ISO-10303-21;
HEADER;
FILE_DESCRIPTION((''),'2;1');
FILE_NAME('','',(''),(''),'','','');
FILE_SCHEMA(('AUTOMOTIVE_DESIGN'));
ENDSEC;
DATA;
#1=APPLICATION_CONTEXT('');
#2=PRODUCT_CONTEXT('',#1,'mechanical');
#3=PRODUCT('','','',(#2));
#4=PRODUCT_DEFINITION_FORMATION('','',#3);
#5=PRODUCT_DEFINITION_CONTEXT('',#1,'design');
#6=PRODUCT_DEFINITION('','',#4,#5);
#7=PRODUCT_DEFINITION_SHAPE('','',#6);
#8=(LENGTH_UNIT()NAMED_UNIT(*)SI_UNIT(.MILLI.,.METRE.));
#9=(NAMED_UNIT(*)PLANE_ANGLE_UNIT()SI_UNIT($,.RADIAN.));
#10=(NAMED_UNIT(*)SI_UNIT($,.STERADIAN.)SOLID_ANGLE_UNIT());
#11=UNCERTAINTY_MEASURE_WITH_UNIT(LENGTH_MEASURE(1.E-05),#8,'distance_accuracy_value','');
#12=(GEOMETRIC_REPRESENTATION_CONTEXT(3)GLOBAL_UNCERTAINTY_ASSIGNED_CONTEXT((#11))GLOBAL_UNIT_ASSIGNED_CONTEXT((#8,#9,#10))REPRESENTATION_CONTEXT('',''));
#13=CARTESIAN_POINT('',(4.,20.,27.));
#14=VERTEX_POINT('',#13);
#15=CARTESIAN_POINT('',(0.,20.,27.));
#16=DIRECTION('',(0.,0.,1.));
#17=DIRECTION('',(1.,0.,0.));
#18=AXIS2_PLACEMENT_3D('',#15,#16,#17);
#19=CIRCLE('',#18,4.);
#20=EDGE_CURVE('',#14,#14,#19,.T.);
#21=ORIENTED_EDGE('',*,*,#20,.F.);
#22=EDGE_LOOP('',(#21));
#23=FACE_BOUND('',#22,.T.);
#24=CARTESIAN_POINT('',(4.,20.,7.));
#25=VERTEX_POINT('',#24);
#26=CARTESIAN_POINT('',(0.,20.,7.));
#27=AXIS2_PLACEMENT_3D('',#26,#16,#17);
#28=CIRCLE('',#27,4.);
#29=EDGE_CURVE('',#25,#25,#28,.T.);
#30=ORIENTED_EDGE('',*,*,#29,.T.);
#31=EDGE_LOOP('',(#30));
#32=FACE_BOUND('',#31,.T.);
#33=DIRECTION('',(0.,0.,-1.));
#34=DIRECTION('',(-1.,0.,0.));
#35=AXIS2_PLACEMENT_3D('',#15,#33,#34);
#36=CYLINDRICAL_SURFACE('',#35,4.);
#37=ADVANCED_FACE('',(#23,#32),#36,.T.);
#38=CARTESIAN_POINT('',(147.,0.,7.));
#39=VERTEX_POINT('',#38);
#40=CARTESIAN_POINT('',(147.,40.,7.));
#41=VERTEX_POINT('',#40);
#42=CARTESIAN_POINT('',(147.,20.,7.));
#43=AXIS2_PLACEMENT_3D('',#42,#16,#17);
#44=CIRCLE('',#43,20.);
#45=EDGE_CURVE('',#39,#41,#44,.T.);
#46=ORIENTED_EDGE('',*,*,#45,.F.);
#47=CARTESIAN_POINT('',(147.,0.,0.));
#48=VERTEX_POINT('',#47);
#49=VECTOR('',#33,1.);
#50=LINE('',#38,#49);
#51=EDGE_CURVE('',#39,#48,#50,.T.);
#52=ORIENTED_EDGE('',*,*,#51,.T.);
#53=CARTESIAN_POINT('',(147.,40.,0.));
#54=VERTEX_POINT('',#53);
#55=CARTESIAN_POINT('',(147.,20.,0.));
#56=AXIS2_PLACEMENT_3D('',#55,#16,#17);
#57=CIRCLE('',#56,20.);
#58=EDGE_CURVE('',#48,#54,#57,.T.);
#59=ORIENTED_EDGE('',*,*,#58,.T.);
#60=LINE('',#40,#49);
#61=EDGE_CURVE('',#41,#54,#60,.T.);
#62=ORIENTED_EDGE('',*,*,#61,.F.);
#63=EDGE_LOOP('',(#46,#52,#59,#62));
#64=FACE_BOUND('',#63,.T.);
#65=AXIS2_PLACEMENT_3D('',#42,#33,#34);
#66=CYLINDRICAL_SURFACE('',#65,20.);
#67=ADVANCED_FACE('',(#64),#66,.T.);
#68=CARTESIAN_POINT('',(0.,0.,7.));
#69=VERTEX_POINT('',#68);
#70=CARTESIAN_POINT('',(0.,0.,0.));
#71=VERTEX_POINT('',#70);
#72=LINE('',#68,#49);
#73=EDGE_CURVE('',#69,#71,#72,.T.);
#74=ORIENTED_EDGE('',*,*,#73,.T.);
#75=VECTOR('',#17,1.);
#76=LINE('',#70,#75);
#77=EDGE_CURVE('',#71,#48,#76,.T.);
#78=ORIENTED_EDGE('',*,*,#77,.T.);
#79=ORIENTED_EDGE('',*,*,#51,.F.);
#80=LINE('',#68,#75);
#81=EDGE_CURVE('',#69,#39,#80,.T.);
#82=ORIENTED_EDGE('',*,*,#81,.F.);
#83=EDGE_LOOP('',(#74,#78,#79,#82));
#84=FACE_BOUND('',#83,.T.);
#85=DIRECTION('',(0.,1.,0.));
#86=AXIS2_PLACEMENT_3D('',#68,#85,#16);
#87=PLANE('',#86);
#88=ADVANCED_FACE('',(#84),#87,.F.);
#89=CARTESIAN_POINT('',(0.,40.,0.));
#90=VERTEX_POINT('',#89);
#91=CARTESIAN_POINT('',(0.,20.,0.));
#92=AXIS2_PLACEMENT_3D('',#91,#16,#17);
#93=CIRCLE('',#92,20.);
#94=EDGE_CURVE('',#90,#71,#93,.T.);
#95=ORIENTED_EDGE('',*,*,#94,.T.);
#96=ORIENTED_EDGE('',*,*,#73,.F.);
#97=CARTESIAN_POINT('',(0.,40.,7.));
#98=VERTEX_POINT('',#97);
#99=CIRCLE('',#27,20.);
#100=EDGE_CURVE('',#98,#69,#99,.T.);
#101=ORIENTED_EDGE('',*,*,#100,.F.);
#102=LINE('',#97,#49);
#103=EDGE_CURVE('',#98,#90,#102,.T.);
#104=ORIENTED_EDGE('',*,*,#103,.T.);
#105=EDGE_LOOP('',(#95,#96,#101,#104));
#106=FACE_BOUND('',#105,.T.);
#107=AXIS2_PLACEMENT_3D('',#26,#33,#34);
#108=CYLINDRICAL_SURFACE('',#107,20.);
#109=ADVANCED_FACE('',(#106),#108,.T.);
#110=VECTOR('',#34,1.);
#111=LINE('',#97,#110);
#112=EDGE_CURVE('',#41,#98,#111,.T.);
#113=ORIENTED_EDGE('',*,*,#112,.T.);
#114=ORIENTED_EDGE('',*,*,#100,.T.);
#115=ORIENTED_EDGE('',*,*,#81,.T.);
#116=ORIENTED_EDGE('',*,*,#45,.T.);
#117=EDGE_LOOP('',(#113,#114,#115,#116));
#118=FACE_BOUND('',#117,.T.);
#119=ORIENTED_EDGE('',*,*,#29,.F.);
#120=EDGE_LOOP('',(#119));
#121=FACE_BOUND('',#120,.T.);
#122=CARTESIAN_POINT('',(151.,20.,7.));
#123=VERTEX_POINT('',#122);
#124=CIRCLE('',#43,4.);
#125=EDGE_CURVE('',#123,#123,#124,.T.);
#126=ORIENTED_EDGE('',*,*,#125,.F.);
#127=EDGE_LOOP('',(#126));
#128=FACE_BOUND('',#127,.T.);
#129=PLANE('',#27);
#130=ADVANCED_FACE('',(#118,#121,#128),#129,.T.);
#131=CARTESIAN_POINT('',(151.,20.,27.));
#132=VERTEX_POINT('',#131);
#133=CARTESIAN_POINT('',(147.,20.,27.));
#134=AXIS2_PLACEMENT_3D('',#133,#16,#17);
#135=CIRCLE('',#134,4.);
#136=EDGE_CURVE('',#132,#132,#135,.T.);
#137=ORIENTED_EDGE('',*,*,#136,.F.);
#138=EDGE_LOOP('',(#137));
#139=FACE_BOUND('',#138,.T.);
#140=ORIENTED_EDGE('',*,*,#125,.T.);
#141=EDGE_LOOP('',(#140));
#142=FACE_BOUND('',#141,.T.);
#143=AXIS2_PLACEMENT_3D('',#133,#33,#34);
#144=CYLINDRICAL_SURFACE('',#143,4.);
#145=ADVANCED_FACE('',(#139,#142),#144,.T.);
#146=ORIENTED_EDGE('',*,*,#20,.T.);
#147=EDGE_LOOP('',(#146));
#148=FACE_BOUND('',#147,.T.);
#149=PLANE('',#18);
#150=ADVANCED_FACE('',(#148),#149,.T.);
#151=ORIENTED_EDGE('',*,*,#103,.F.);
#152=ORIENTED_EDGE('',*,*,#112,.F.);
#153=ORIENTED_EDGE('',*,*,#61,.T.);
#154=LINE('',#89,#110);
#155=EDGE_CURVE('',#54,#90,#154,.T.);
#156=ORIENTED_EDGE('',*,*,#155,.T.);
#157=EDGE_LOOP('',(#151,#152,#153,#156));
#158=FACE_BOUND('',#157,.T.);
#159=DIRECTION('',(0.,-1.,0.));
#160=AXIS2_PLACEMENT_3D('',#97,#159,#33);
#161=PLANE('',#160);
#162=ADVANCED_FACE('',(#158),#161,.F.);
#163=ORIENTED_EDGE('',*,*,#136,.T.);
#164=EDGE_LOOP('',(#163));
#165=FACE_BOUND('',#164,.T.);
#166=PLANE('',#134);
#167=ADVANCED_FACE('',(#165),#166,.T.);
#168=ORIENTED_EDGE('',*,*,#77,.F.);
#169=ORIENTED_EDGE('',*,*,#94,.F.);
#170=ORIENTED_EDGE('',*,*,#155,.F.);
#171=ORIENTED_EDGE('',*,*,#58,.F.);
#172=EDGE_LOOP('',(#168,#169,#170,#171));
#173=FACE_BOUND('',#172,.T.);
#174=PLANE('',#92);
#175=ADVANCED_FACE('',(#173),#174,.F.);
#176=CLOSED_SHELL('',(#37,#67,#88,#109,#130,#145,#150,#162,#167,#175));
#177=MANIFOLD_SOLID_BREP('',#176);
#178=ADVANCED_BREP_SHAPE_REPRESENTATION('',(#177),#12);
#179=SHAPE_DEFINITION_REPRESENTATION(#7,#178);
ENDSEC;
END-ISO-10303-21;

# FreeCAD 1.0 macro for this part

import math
import FreeCAD as App
import Part
import Sketcher

V = App.Vector

doc = App.newDocument("Part")
params = doc.addObject("Spreadsheet::Sheet", "Params")
for row, (alias, value) in enumerate([
    ("sketch1_radius", "20 mm"),
    ("sketch1_width", "147 mm"),
    ("pad1_length", "7 mm"),
    ("sketch2_diameter", "8 mm"),
    ("pad2_length", "20 mm"),
    ("sketch3_diameter", "8 mm"),
    ("pad3_length", "20 mm"),
], start=1):
    params.set(f"A{row}", alias)
    params.set(f"B{row}", "=" + value)
    params.setAlias(f"B{row}", alias)

body = doc.addObject("PartDesign::Body", "Body")

# Sketch on XY plane
sketch1 = doc.addObject("Sketcher::SketchObject", "Sketch")
body.addObject(sketch1)
sketch1.AttachmentSupport = (doc.XY_Plane, [""])
sketch1.MapMode = "FlatFace"
sketch1.addGeometry(Part.LineSegment(V(0, 0, 0), V(147, 0, 0)), False)
sketch1.addGeometry(Part.ArcOfCircle(Part.Circle(V(147, 20, 0), V(0, 0, 1), 20), math.radians(-90), math.radians(90)), False)
sketch1.addGeometry(Part.LineSegment(V(147, 40, 0), V(0, 40, 0)), False)
sketch1.addGeometry(Part.ArcOfCircle(Part.Circle(V(0, 20, 0), V(0, 0, 1), 20), math.radians(90), math.radians(270)), False)
sketch1.addConstraint(Sketcher.Constraint("Tangent", 0, 2, 1, 1))
sketch1.addConstraint(Sketcher.Constraint("Tangent", 1, 2, 2, 1))
sketch1.addConstraint(Sketcher.Constraint("Tangent", 2, 2, 3, 1))
sketch1.addConstraint(Sketcher.Constraint("Tangent", 3, 2, 0, 1))
sketch1.addConstraint(Sketcher.Constraint("Horizontal", 0))
sketch1.addConstraint(Sketcher.Constraint("Horizontal", 2))
sketch1.addConstraint(Sketcher.Constraint("Coincident", 3, 2, -1, 1))
sketch1.addConstraint(Sketcher.Constraint("Radius", 1, 20.0))
sketch1.addConstraint(Sketcher.Constraint("DistanceX", 0, 1, 0, 2, 147.0))
sketch1.setExpression("Constraints[7]", "Params.sketch1_radius")
sketch1.setExpression("Constraints[8]", "Params.sketch1_width")
pad1 = doc.addObject("PartDesign::Pad", "Pad")
body.addObject(pad1)
pad1.Profile = sketch1
pad1.setExpression("Length", "Params.pad1_length")

# Sketch on XY plane
sketch2 = doc.addObject("Sketcher::SketchObject", "Sketch001")
body.addObject(sketch2)
sketch2.AttachmentSupport = (doc.XY_Plane, [""])
sketch2.MapMode = "FlatFace"
sketch2.AttachmentOffset = App.Placement(V(0, 0, 7), App.Rotation())
sketch2.addGeometry(Part.Circle(V(147, 20, 0), V(0, 0, 1), 4), False)
sketch2.addConstraint(Sketcher.Constraint("Diameter", 0, 8.0))
sketch2.addConstraint(Sketcher.Constraint("DistanceX", -1, 1, 0, 3, 147.0))
sketch2.addConstraint(Sketcher.Constraint("DistanceY", -1, 1, 0, 3, 20.0))
sketch2.setExpression("Constraints[0]", "Params.sketch2_diameter")
pad2 = doc.addObject("PartDesign::Pad", "Pad001")
body.addObject(pad2)
pad2.Profile = sketch2
pad2.setExpression("Length", "Params.pad2_length")

# Sketch on XY plane
sketch3 = doc.addObject("Sketcher::SketchObject", "Sketch002")
body.addObject(sketch3)
sketch3.AttachmentSupport = (doc.XY_Plane, [""])
sketch3.MapMode = "FlatFace"
sketch3.AttachmentOffset = App.Placement(V(0, 0, 7), App.Rotation())
sketch3.addGeometry(Part.Circle(V(0, 20, 0), V(0, 0, 1), 4), False)
sketch3.addConstraint(Sketcher.Constraint("PointOnObject", 0, 3, -2))
sketch3.addConstraint(Sketcher.Constraint("Diameter", 0, 8.0))
sketch3.addConstraint(Sketcher.Constraint("DistanceY", -1, 1, 0, 3, 20.0))
sketch3.setExpression("Constraints[1]", "Params.sketch3_diameter")
pad3 = doc.addObject("PartDesign::Pad", "Pad002")
body.addObject(pad3)
pad3.Profile = sketch3
pad3.setExpression("Length", "Params.pad3_length")

doc.recompute()
